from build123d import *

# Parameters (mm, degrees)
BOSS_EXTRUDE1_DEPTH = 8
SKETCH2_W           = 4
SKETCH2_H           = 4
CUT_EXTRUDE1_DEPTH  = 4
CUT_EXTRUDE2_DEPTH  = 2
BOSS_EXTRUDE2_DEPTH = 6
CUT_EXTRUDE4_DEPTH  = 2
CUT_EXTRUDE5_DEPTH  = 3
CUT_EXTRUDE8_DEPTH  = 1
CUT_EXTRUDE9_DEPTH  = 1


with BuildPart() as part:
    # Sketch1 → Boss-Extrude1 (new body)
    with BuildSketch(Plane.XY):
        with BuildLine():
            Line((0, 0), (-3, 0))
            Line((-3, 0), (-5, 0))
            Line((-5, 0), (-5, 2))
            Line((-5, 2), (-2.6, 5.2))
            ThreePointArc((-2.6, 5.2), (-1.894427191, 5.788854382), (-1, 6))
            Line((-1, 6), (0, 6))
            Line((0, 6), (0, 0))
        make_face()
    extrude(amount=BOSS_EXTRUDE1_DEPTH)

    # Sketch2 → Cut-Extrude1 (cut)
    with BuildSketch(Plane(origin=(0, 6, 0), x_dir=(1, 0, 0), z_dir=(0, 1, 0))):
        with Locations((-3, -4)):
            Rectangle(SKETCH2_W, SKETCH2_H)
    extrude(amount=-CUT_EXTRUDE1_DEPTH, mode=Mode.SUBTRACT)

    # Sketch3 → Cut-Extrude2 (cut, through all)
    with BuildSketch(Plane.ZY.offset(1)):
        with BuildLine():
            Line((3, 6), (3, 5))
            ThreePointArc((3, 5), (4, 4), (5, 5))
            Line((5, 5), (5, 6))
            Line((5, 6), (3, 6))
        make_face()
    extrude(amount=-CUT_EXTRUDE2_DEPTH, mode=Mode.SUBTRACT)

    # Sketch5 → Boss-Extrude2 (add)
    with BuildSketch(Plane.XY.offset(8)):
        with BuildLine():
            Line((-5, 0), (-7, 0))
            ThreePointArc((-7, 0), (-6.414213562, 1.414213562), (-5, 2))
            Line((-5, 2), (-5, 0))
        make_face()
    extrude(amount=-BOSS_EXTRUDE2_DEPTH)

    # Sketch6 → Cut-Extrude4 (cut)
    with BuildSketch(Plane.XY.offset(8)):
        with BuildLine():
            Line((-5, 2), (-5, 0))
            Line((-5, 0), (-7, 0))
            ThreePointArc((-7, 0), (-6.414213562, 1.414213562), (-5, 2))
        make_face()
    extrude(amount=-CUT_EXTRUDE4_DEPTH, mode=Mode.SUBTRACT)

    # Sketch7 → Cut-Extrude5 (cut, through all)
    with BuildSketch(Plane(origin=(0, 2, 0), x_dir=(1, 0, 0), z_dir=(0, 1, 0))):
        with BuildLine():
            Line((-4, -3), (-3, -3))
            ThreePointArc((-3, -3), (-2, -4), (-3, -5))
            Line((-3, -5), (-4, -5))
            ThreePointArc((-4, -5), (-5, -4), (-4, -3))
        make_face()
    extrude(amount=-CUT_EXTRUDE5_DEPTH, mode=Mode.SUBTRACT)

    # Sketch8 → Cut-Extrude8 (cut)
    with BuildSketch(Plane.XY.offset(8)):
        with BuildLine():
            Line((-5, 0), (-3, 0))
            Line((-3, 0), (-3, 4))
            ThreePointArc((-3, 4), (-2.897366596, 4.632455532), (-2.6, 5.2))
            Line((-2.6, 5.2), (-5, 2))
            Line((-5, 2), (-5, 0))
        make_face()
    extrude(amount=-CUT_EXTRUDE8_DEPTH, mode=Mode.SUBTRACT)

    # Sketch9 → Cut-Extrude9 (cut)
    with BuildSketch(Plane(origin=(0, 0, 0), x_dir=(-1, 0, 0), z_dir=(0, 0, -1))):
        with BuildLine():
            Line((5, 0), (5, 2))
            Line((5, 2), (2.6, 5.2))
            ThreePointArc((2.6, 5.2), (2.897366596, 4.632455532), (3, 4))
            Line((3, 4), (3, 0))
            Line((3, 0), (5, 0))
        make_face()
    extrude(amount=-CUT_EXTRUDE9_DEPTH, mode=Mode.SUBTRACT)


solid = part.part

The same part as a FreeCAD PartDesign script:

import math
import FreeCAD as App
import Part
import Sketcher

V = App.Vector
Q = App.Units.Quantity


def add_polygon(sketch, points):
    """Adds a closed chain of lines whose ends are joined by coincident constraints."""
    first, n = sketch.GeometryCount, len(points)
    for a, b in zip(points, points[1:] + points[:1]):
        sketch.addGeometry(Part.LineSegment(App.Vector(*a, 0), App.Vector(*b, 0)), False)
    for i in range(n):
        sketch.addConstraint(Sketcher.Constraint("Coincident", first + i, 2, first + (i + 1) % n, 1))

doc = App.newDocument("Part")
body = doc.addObject("PartDesign::Body", "Body")

# Sketch on XY plane
sketch1 = body.newObject("Sketcher::SketchObject", "Sketch")
sketch1.AttachmentSupport = (doc.getObject("XY_Plane"), [""])
sketch1.MapMode = "FlatFace"
sketch1.addGeometry([
    Part.LineSegment(V(-5, 0, 0), V(0, 0, 0)),  # 0
    Part.LineSegment(V(0, 0, 0), V(0, 6, 0)),  # 1
    Part.LineSegment(V(0, 6, 0), V(-1, 6, 0)),  # 2
    Part.ArcOfCircle(Part.Circle(V(-1, 4, 0), V(0, 0, 1), 2), math.radians(90), math.radians(143)),  # 3
    Part.LineSegment(V(-2.6, 5.2, 0), V(-5, 2, 0)),  # 4
    Part.LineSegment(V(-5, 2, 0), V(-5, 0, 0)),  # 5
], False)
sketch1.addConstraint([
    Sketcher.Constraint("Coincident", 0, 2, 1, 1),
    Sketcher.Constraint("Coincident", 1, 2, 2, 1),
    Sketcher.Constraint("Tangent", 2, 2, 3, 1),
    Sketcher.Constraint("Tangent", 3, 2, 4, 1),
    Sketcher.Constraint("Coincident", 4, 2, 5, 1),
    Sketcher.Constraint("Coincident", 5, 2, 0, 1),
    Sketcher.Constraint("Horizontal", 0),
    Sketcher.Constraint("Vertical", 1),
    Sketcher.Constraint("Horizontal", 2),
    Sketcher.Constraint("Vertical", 5),
    Sketcher.Constraint("Coincident", 0, 2, -1, 1),
    Sketcher.Constraint("Radius", 3, Q("2 mm")),
    Sketcher.Constraint("DistanceX", 0, 1, 0, 2, Q("5 mm")),
    Sketcher.Constraint("DistanceX", 2, 2, 2, 1, Q("1 mm")),
    Sketcher.Constraint("DistanceY", 1, 1, 1, 2, Q("6 mm")),
    Sketcher.Constraint("DistanceY", 5, 2, 5, 1, Q("2 mm")),
])
pad1 = body.newObject("PartDesign::Pad", "Pad")
pad1.Profile = sketch1
pad1.Length = 8

# Sketch on XZ plane
sketch2 = body.newObject("Sketcher::SketchObject", "Sketch001")
sketch2.AttachmentSupport = (doc.getObject("XZ_Plane"), [""])
sketch2.MapMode = "FlatFace"
sketch2.AttachmentOffset = App.Placement(V(0, 0, -6), App.Rotation())
add_polygon(sketch2, [(-5, 2), (-5, 6), (-1, 6), (-1, 2)])  # lines 0-3
sketch2.addConstraint([
    Sketcher.Constraint("Vertical", 0),
    Sketcher.Constraint("Horizontal", 1),
    Sketcher.Constraint("Vertical", 2),
    Sketcher.Constraint("Horizontal", 3),
    Sketcher.Constraint("Equal", 3, 0),
    Sketcher.Constraint("DistanceX", 1, 1, 1, 2, Q("4 mm")),
    Sketcher.Constraint("DistanceX", 0, 2, -1, 1, Q("5 mm")),
    Sketcher.Constraint("DistanceY", -1, 1, 0, 2, Q("6 mm")),
])
pocket1 = body.newObject("PartDesign::Pocket", "Pocket")
pocket1.Profile = sketch2
pocket1.Length = 4
pocket1.Reversed = True

# Sketch on YZ plane
sketch3 = body.newObject("Sketcher::SketchObject", "Sketch002")
sketch3.AttachmentSupport = (doc.getObject("YZ_Plane"), [""])
sketch3.MapMode = "FlatFace"
sketch3.AttachmentOffset = App.Placement(V(0, 0, -1), App.Rotation())
sketch3.addGeometry([
    Part.LineSegment(V(6, 3, 0), V(5, 3, 0)),
    Part.ArcOfCircle(Part.Circle(V(5, 4, 0), V(0, 0, 1), 1), math.radians(90), math.radians(270)),
    Part.LineSegment(V(5, 5, 0), V(6, 5, 0)),
    Part.LineSegment(V(6, 5, 0), V(6, 3, 0)),
], False)
sketch3.addConstraint([
    Sketcher.Constraint("Tangent", 0, 2, 1, 2),
    Sketcher.Constraint("Tangent", 1, 1, 2, 1),
    Sketcher.Constraint("Coincident", 2, 2, 3, 1),
    Sketcher.Constraint("Coincident", 3, 2, 0, 1),
    Sketcher.Constraint("Horizontal", 0),
    Sketcher.Constraint("Horizontal", 2),
    Sketcher.Constraint("Vertical", 3),
    Sketcher.Constraint("Radius", 1, Q("1 mm")),
    Sketcher.Constraint("DistanceX", 0, 2, 0, 1, Q("1 mm")),
    Sketcher.Constraint("DistanceX", -1, 1, 1, 3, Q("5 mm")),
    Sketcher.Constraint("DistanceY", -1, 1, 1, 3, Q("4 mm")),
])
pocket2 = body.newObject("PartDesign::Pocket", "Pocket001")
pocket2.Profile = sketch3
pocket2.Type = "ThroughAll"
pocket2.Reversed = True

# Sketch on XY plane
sketch4 = body.newObject("Sketcher::SketchObject", "Sketch003")
sketch4.AttachmentSupport = (doc.getObject("XY_Plane"), [""])
sketch4.MapMode = "FlatFace"
sketch4.AttachmentOffset = App.Placement(V(0, 0, 8), App.Rotation())
sketch4.addGeometry([
    Part.LineSegment(V(-7, 0, 0), V(-5, 0, 0)),
    Part.LineSegment(V(-5, 0, 0), V(-5, 2, 0)),
    Part.ArcOfCircle(Part.Circle(V(-5, 0, 0), V(0, 0, 1), 2), math.radians(90), math.radians(180)),
], False)
sketch4.addConstraint([
    Sketcher.Constraint("Coincident", 0, 2, 1, 1),
    Sketcher.Constraint("Coincident", 1, 2, 2, 1),
    Sketcher.Constraint("Coincident", 2, 2, 0, 1),
    Sketcher.Constraint("Horizontal", 0),
    Sketcher.Constraint("Vertical", 1),
    Sketcher.Constraint("Coincident", 0, 2, 2, 3),
    Sketcher.Constraint("PointOnObject", 2, 3, -1),
    Sketcher.Constraint("Radius", 2, Q("2 mm")),
    Sketcher.Constraint("DistanceX", 2, 3, -1, 1, Q("5 mm")),
])
pad2 = body.newObject("PartDesign::Pad", "Pad001")
pad2.Profile = sketch4
pad2.Length = 6
pad2.Reversed = True

# Sketch on XY plane
sketch5 = body.newObject("Sketcher::SketchObject", "Sketch004")
sketch5.AttachmentSupport = (doc.getObject("XY_Plane"), [""])
sketch5.MapMode = "FlatFace"
sketch5.AttachmentOffset = App.Placement(V(0, 0, 8), App.Rotation())
sketch5.addGeometry([
    Part.LineSegment(V(-5, 0, 0), V(-5, 2, 0)),
    Part.ArcOfCircle(Part.Circle(V(-5, 0, 0), V(0, 0, 1), 2), math.radians(90), math.radians(180)),
    Part.LineSegment(V(-7, 0, 0), V(-5, 0, 0)),
], False)
sketch5.addConstraint([
    Sketcher.Constraint("Coincident", 0, 2, 1, 1),
    Sketcher.Constraint("Coincident", 1, 2, 2, 1),
    Sketcher.Constraint("Coincident", 2, 2, 0, 1),
    Sketcher.Constraint("Vertical", 0),
    Sketcher.Constraint("Horizontal", 2),
    Sketcher.Constraint("Coincident", 2, 2, 1, 3),
    Sketcher.Constraint("PointOnObject", 1, 3, -1),
    Sketcher.Constraint("Radius", 1, Q("2 mm")),
    Sketcher.Constraint("DistanceX", 1, 3, -1, 1, Q("5 mm")),
])
pocket3 = body.newObject("PartDesign::Pocket", "Pocket002")
pocket3.Profile = sketch5
pocket3.Length = 2

# Sketch on XZ plane
sketch6 = body.newObject("Sketcher::SketchObject", "Sketch005")
sketch6.AttachmentSupport = (doc.getObject("XZ_Plane"), [""])
sketch6.MapMode = "FlatFace"
sketch6.AttachmentOffset = App.Placement(V(0, 0, -2), App.Rotation())
sketch6.addGeometry([
    Part.LineSegment(V(-3, 3, 0), V(-4, 3, 0)),
    Part.ArcOfCircle(Part.Circle(V(-4, 4, 0), V(0, 0, 1), 1), math.radians(90), math.radians(270)),
    Part.LineSegment(V(-4, 5, 0), V(-3, 5, 0)),
    Part.ArcOfCircle(Part.Circle(V(-3, 4, 0), V(0, 0, 1), 1), math.radians(-90), math.radians(90)),
], False)
sketch6.addConstraint([
    Sketcher.Constraint("Tangent", 0, 2, 1, 2),
    Sketcher.Constraint("Tangent", 1, 1, 2, 1),
    Sketcher.Constraint("Tangent", 2, 2, 3, 2),
    Sketcher.Constraint("Tangent", 3, 1, 0, 1),
    Sketcher.Constraint("Horizontal", 0),
    Sketcher.Constraint("Horizontal", 2),
    Sketcher.Constraint("Radius", 1, Q("1 mm")),
    Sketcher.Constraint("DistanceX", 0, 2, 0, 1, Q("1 mm")),
    Sketcher.Constraint("DistanceX", 1, 3, -1, 1, Q("4 mm")),
    Sketcher.Constraint("DistanceY", -1, 1, 1, 3, Q("4 mm")),
])
pocket4 = body.newObject("PartDesign::Pocket", "Pocket003")
pocket4.Profile = sketch6
pocket4.Type = "ThroughAll"
pocket4.Reversed = True

# Sketch on XY plane
sketch7 = body.newObject("Sketcher::SketchObject", "Sketch006")
sketch7.AttachmentSupport = (doc.getObject("XY_Plane"), [""])
sketch7.MapMode = "FlatFace"
sketch7.AttachmentOffset = App.Placement(V(0, 0, 8), App.Rotation())
sketch7.addGeometry([
    Part.LineSegment(V(-5, 0, 0), V(-3, 0, 0)),  # 0
    Part.LineSegment(V(-3, 0, 0), V(-3, 4, 0)),  # 1
    Part.ArcOfCircle(Part.Circle(V(-1, 4, 0), V(0, 0, 1), 2), math.radians(143), math.radians(180)),  # 2
    Part.LineSegment(V(-2.6, 5.2, 0), V(-5, 2, 0)),  # 3
    Part.LineSegment(V(-5, 2, 0), V(-5, 0, 0)),  # 4
], False)
sketch7.addConstraint([
    Sketcher.Constraint("Coincident", 0, 2, 1, 1),
    Sketcher.Constraint("Tangent", 1, 2, 2, 2),
    Sketcher.Constraint("Tangent", 2, 1, 3, 1),
    Sketcher.Constraint("Coincident", 3, 2, 4, 1),
    Sketcher.Constraint("Coincident", 4, 2, 0, 1),
    Sketcher.Constraint("Horizontal", 0),
    Sketcher.Constraint("Vertical", 1),
    Sketcher.Constraint("Vertical", 4),
    Sketcher.Constraint("PointOnObject", 0, 2, -1),
    Sketcher.Constraint("Equal", 0, 4),
    Sketcher.Constraint("Radius", 2, Q("2 mm")),
    Sketcher.Constraint("DistanceX", 0, 1, 0, 2, Q("2 mm")),
    Sketcher.Constraint("DistanceY", 1, 1, 1, 2, Q("4 mm")),
    Sketcher.Constraint("DistanceX", 2, 3, -1, 1, Q("1 mm")),
])
pocket5 = body.newObject("PartDesign::Pocket", "Pocket004")
pocket5.Profile = sketch7
pocket5.Length = 1

# Sketch on XY plane
sketch8 = body.newObject("Sketcher::SketchObject", "Sketch007")
sketch8.AttachmentSupport = (doc.getObject("XY_Plane"), [""])
sketch8.MapMode = "FlatFace"
sketch8.addGeometry([
    Part.LineSegment(V(-5, 0, 0), V(-5, 2, 0)),  # 0
    Part.LineSegment(V(-5, 2, 0), V(-2.6, 5.2, 0)),  # 1
    Part.ArcOfCircle(Part.Circle(V(-1, 4, 0), V(0, 0, 1), 2), math.radians(143), math.radians(180)),  # 2
    Part.LineSegment(V(-3, 4, 0), V(-3, 0, 0)),  # 3
    Part.LineSegment(V(-3, 0, 0), V(-5, 0, 0)),  # 4
], False)
sketch8.addConstraint([
    Sketcher.Constraint("Coincident", 0, 2, 1, 1),
    Sketcher.Constraint("Tangent", 1, 2, 2, 1),
    Sketcher.Constraint("Tangent", 2, 2, 3, 1),
    Sketcher.Constraint("Coincident", 3, 2, 4, 1),
    Sketcher.Constraint("Coincident", 4, 2, 0, 1),
    Sketcher.Constraint("Vertical", 0),
    Sketcher.Constraint("Vertical", 3),
    Sketcher.Constraint("Horizontal", 4),
    Sketcher.Constraint("PointOnObject", 3, 2, -1),
    Sketcher.Constraint("Equal", 4, 0),
    Sketcher.Constraint("Radius", 2, Q("2 mm")),
    Sketcher.Constraint("DistanceX", 4, 2, 4, 1, Q("2 mm")),
    Sketcher.Constraint("DistanceY", 3, 2, 3, 1, Q("4 mm")),
    Sketcher.Constraint("DistanceX", 2, 3, -1, 1, Q("1 mm")),
])
pocket6 = body.newObject("PartDesign::Pocket", "Pocket005")
pocket6.Profile = sketch8
pocket6.Length = 1
pocket6.Reversed = True

doc.recompute()
